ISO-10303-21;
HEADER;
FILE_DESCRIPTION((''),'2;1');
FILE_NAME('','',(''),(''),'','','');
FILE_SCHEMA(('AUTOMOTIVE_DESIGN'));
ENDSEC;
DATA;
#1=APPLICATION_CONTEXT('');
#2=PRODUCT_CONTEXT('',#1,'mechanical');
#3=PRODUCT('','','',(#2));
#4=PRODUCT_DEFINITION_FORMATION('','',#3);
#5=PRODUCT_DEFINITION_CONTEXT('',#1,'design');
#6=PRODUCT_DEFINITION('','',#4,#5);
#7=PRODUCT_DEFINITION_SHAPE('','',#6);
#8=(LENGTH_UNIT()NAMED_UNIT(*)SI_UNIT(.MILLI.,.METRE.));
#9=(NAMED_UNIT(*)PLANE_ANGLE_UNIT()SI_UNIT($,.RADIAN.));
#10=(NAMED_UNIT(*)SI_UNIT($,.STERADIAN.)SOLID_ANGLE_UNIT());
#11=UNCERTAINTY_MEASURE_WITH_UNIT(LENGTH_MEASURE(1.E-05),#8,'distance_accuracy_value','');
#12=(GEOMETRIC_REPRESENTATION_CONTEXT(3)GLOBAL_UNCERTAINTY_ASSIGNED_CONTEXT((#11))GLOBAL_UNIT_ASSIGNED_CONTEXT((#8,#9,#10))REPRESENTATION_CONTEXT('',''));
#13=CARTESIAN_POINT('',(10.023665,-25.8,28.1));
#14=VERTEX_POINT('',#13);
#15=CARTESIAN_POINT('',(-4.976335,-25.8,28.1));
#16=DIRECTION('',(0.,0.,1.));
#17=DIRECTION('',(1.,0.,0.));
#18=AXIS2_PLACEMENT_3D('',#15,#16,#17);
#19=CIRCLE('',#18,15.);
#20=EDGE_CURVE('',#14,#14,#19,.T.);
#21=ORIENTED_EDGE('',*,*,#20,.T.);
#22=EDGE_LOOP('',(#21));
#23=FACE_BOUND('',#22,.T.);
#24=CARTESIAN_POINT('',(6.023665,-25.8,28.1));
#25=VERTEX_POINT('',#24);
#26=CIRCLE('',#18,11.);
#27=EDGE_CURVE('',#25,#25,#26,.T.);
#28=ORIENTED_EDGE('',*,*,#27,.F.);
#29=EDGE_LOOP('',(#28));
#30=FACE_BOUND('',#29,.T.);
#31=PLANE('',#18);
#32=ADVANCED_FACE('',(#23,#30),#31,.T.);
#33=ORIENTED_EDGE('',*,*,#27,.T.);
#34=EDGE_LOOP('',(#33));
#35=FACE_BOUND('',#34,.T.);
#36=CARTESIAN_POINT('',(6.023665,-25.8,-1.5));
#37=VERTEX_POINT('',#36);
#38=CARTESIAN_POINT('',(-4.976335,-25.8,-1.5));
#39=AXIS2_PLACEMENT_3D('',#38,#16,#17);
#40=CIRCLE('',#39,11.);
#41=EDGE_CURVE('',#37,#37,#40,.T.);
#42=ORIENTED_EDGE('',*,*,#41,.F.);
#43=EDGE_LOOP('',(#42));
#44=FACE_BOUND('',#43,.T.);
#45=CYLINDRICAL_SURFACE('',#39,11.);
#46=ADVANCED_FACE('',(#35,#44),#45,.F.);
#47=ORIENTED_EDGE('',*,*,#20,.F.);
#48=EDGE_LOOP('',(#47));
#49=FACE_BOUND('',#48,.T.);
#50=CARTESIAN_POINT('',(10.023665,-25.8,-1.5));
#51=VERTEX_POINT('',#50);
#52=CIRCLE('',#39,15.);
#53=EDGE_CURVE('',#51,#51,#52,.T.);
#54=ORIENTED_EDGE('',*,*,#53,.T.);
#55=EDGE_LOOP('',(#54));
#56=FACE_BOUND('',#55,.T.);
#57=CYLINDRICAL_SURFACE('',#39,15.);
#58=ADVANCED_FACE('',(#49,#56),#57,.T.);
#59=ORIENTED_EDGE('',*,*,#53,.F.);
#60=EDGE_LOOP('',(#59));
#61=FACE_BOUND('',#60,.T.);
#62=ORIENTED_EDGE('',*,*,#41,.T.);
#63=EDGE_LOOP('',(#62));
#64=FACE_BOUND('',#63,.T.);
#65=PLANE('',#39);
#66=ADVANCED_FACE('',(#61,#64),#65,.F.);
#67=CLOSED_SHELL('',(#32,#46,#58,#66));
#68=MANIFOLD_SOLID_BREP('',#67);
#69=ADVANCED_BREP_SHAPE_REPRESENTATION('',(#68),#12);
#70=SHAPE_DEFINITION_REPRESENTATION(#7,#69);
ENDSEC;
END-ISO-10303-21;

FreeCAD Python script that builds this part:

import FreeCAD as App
import Part
import Sketcher
Q = App.Units.Quantity

doc = App.newDocument("Part")
body = doc.addObject("PartDesign::Body", "Body")

sketch1 = body.newObject("Sketcher::SketchObject", "Sketch")
sketch1.AttachmentSupport = (doc.getObject("XY_Plane"), [""])
sketch1.MapMode = "FlatFace"
sketch1.AttachmentOffset = App.Placement(App.Vector(0, 0, 28.1), App.Rotation())
sketch1.addGeometry(Part.Circle(App.Vector(-4.976335, -25.8, 0), App.Vector(0, 0, 1), 15), False)
sketch1.addGeometry(Part.Circle(App.Vector(-4.976335, -25.8, 0), App.Vector(0, 0, 1), 11), False)
sketch1.addConstraint(Sketcher.Constraint("Coincident", 1, 3, 0, 3))
sketch1.addConstraint(Sketcher.Constraint("Diameter", 0, Q("30 mm")))
sketch1.addConstraint(Sketcher.Constraint("Diameter", 1, Q("22 mm")))
sketch1.addConstraint(Sketcher.Constraint("DistanceY", 0, 3, -1, 1, Q("25.8 mm")))
sketch1.addConstraint(Sketcher.Constraint("DistanceX", 0, 3, -1, 1, Q("4.976335 mm")))
pad1 = body.newObject("PartDesign::Pad", "Pad")
pad1.Profile = sketch1
pad1.Length = 29.6
pad1.Reversed = True

doc.recompute()
